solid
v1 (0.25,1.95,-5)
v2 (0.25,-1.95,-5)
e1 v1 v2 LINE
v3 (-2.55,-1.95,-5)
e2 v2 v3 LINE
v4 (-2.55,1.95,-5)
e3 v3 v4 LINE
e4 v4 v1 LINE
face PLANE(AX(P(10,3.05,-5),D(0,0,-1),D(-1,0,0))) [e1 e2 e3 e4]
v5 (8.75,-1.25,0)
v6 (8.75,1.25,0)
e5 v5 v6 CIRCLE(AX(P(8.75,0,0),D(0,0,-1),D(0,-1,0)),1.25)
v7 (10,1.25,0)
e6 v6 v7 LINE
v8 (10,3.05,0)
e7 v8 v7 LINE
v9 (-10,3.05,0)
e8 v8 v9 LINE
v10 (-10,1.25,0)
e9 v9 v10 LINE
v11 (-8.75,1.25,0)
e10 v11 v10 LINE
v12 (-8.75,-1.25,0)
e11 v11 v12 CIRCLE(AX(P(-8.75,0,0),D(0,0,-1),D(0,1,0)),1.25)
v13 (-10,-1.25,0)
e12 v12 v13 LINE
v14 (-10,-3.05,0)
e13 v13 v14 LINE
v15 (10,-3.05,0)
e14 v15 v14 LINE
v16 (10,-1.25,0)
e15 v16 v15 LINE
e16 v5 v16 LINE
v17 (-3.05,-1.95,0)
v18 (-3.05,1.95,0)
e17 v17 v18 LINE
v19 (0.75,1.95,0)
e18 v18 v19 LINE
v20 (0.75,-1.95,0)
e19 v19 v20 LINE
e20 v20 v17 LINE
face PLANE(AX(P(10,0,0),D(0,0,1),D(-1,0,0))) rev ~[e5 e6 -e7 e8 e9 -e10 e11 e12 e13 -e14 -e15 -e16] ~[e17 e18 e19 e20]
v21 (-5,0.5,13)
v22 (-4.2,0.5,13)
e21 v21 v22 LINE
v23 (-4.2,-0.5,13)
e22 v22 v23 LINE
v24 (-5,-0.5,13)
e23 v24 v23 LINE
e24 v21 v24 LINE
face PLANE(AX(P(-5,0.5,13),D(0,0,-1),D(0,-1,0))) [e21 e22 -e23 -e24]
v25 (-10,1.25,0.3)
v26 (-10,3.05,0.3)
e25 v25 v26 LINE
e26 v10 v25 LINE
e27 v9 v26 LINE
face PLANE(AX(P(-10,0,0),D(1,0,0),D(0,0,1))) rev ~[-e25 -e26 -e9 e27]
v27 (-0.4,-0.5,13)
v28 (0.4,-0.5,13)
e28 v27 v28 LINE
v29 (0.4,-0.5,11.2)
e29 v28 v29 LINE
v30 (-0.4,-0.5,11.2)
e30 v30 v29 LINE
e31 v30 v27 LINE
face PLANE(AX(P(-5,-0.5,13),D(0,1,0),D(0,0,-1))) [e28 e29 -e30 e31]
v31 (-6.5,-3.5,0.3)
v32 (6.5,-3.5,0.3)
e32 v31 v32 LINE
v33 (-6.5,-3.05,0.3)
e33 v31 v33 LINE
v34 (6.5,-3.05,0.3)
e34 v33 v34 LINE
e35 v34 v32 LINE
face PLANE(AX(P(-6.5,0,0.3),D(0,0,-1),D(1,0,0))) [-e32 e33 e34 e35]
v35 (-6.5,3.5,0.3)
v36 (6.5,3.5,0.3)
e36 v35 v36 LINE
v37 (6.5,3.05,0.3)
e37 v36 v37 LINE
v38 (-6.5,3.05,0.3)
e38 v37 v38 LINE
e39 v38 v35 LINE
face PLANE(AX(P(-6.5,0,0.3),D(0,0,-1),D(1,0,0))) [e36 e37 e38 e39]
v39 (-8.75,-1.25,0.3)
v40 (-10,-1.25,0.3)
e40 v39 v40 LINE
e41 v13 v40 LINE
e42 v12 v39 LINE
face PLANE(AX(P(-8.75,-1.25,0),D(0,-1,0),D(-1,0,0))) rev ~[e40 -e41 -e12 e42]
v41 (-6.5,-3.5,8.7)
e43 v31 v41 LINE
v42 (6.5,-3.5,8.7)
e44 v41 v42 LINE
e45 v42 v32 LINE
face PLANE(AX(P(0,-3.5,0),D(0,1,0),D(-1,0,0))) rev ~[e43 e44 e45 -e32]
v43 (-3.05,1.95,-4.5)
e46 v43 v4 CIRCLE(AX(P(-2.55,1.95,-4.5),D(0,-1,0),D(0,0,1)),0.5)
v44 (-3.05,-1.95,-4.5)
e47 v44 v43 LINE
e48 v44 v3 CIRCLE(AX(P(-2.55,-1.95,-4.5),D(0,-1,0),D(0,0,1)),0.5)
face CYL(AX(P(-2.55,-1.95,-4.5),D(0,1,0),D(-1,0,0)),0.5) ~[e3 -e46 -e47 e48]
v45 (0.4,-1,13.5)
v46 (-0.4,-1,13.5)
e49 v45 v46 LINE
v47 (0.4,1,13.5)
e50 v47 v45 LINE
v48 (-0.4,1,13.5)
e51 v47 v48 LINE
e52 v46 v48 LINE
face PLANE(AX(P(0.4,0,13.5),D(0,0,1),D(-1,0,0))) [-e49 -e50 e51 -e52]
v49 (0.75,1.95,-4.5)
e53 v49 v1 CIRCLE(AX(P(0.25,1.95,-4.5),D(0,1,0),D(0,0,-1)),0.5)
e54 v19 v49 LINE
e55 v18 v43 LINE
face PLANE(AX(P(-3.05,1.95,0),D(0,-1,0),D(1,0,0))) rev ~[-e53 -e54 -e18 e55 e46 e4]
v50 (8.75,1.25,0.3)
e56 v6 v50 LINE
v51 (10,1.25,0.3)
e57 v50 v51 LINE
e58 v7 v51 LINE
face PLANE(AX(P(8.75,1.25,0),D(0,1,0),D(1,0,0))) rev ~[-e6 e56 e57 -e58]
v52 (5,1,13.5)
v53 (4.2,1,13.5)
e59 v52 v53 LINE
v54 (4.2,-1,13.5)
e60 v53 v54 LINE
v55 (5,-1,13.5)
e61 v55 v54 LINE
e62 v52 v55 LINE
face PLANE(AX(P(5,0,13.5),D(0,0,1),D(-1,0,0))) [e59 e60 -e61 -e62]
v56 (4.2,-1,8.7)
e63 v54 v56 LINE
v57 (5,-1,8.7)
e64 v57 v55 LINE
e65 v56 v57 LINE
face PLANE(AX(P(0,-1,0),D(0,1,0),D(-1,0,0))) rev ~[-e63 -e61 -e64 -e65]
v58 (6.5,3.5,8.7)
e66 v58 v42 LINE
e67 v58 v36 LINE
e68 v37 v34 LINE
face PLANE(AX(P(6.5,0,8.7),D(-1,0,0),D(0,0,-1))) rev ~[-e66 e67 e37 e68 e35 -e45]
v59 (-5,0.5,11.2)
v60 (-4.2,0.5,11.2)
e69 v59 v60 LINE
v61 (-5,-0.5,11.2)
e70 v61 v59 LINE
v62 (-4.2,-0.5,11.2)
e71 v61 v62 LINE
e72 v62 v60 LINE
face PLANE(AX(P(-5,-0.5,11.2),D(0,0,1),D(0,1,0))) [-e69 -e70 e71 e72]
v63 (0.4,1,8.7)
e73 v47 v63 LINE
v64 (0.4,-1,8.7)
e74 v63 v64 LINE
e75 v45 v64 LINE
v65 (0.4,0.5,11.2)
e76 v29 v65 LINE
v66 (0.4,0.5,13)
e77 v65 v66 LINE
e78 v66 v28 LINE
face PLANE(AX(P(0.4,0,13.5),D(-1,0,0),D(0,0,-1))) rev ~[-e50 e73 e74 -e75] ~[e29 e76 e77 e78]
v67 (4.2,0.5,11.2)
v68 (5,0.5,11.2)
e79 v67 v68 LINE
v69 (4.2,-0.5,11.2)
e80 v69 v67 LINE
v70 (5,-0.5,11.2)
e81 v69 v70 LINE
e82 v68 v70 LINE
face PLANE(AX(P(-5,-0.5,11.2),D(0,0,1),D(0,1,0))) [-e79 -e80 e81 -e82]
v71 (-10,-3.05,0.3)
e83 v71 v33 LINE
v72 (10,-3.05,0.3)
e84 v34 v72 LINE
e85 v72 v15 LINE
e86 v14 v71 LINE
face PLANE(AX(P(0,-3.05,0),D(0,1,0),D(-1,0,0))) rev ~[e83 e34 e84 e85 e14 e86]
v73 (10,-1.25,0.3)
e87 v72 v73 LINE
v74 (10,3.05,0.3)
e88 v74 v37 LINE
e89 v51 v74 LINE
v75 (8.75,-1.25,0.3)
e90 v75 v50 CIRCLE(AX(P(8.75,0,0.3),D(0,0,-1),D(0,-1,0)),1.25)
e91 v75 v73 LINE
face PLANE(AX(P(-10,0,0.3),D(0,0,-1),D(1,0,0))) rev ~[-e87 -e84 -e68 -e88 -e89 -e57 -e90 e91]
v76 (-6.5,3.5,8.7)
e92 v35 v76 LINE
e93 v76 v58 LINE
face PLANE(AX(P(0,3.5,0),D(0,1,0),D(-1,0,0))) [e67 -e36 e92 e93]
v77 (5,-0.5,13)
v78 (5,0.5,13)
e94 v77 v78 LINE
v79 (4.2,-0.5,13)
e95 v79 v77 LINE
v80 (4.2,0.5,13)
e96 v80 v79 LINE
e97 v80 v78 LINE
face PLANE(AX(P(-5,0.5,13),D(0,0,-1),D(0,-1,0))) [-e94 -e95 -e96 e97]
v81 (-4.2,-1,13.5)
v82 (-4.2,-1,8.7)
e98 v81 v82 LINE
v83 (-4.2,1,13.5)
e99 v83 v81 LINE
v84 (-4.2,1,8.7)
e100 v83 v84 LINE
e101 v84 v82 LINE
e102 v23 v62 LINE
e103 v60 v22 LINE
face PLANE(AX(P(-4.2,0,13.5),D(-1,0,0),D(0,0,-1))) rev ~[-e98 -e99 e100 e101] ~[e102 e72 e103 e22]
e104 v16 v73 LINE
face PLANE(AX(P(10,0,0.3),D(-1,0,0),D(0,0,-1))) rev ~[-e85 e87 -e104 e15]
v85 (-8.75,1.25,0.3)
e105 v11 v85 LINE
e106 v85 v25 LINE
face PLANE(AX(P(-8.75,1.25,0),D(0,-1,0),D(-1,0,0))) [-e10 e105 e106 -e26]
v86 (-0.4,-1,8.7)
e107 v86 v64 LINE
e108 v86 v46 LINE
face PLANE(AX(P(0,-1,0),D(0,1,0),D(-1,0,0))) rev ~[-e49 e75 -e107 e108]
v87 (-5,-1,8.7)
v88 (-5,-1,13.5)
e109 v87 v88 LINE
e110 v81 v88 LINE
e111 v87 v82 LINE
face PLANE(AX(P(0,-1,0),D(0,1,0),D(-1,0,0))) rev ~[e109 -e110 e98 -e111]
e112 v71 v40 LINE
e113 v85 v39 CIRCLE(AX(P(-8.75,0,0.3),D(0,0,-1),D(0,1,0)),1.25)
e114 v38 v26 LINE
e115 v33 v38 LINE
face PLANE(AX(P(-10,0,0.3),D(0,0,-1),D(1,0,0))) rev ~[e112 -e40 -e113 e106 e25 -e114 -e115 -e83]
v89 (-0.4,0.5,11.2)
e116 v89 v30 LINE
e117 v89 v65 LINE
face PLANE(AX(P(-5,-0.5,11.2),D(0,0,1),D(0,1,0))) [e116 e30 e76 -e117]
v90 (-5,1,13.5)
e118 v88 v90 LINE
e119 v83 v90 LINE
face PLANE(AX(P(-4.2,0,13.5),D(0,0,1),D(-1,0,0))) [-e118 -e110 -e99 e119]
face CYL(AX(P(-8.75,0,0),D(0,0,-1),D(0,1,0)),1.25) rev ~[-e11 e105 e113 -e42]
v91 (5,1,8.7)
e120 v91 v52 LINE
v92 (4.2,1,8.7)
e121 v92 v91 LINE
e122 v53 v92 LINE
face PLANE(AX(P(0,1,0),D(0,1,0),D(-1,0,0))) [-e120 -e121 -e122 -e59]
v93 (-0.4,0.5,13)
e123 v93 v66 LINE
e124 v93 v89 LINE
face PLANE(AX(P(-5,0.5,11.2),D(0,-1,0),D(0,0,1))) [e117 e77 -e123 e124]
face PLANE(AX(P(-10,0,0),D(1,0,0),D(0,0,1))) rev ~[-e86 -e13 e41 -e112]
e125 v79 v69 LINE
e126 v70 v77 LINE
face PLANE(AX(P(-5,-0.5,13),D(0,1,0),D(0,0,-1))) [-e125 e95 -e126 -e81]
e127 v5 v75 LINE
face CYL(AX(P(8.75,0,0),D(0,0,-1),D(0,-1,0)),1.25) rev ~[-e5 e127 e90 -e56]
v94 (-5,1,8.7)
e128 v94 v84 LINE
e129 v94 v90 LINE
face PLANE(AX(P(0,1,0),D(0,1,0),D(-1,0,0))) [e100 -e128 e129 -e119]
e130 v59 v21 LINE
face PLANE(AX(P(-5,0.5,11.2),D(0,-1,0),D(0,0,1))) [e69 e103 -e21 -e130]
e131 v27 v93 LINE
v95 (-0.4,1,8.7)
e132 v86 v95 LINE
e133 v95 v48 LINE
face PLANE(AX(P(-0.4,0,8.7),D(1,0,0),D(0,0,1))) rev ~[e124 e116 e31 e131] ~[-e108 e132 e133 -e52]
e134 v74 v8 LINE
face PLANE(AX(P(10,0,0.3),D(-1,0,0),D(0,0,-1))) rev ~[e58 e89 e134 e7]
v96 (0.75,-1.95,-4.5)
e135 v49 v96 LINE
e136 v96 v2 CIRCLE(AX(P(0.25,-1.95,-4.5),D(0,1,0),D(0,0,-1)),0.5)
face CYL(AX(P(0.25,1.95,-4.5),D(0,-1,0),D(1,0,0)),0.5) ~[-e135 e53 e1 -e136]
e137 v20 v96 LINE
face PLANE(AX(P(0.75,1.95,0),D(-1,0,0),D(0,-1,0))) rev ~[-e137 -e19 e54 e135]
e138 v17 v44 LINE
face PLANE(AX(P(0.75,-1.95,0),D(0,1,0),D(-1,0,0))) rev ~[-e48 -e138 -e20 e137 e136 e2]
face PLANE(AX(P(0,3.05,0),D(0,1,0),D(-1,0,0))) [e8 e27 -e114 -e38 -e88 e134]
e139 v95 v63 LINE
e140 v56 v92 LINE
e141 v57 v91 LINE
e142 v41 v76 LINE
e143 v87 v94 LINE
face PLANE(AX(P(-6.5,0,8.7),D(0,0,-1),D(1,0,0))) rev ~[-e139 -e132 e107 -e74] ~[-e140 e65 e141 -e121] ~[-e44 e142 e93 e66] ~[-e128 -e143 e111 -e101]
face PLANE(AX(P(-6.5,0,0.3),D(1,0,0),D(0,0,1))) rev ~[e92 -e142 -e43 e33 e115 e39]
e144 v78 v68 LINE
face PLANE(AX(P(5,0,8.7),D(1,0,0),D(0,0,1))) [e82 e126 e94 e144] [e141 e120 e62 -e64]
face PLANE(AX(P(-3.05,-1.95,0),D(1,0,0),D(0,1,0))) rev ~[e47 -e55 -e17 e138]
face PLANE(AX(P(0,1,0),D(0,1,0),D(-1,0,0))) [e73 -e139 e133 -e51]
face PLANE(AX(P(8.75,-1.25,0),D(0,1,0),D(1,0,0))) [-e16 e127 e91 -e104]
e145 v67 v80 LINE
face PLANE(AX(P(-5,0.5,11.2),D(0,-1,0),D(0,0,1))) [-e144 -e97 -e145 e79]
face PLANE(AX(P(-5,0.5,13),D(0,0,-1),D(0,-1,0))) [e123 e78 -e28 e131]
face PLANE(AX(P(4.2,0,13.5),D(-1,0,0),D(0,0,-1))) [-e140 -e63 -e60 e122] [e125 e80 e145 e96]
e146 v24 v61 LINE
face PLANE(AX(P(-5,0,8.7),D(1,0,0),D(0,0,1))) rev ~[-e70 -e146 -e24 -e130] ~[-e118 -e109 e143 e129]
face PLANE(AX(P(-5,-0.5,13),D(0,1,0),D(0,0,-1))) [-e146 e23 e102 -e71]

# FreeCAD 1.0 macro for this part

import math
import FreeCAD as App
import Part
import Sketcher
Q = App.Units.Quantity


def edges_at(feature, points):
    """Names of the edges that pass closest to the given points."""
    edges = feature.Shape.Edges
    near = lambda p: min(range(len(edges)), key=lambda i: edges[i].distToShape(Part.Vertex(*p))[0])
    return sorted({f"Edge{near(p) + 1}" for p in points})


def add_polygon(sketch, points):
    """Adds a closed chain of lines whose ends are joined by coincident constraints."""
    first, n = sketch.GeometryCount, len(points)
    for a, b in zip(points, points[1:] + points[:1]):
        sketch.addGeometry(Part.LineSegment(App.Vector(*a, 0), App.Vector(*b, 0)), False)
    for i in range(n):
        sketch.addConstraint(Sketcher.Constraint("Coincident", first + i, 2, first + (i + 1) % n, 1))

doc = App.newDocument("Part")
params = doc.addObject("Spreadsheet::Sheet", "Params")
for row, (alias, value) in enumerate([
    ("sketch1_width", "13 mm"),
    ("pad1_length", "7 mm"),
    ("sketch2_width", "20 mm"),
    ("sketch2_height", "0.3 mm"),
    ("pad2_length", "6.1 mm"),
    ("sketch3_width", "0.8 mm"),
    ("pad3_length", "2 mm"),
    ("sketch4_radius", "1.25 mm"),
    ("pocket1_length", "0.3 mm"),
    ("sketch5_width", "3.8 mm"),
    ("sketch5_height", "3.9 mm"),
    ("pad4_length", "5 mm"),
    ("fillet_radius", "0.5 mm"),
    ("sketch6_width", "1 mm"),
    ("sketch6_height", "1.8 mm"),
    ("pocket2_length", "13 mm"),
], start=1):
    params.set(f"A{row}", alias)
    params.set(f"B{row}", "=" + value)
    params.setAlias(f"B{row}", alias)

body = doc.addObject("PartDesign::Body", "Body")

# Sketch on XZ plane
sketch1 = body.newObject("Sketcher::SketchObject", "Sketch")
sketch1.AttachmentSupport = (doc.getObject("XZ_Plane"), [""])
sketch1.MapMode = "FlatFace"
add_polygon(sketch1, [(6, 0), (-6, 0), (-6, 9), (6, 9)])  # lines 0-3
sketch1.addConstraint([
    Sketcher.Constraint("Horizontal", 0),
    Sketcher.Constraint("Vertical", 1),
    Sketcher.Constraint("Horizontal", 2),
    Sketcher.Constraint("Vertical", 3),
    Sketcher.Constraint("DistanceX", 0, 2, 0, 1, Q("13 mm")),
    Sketcher.Constraint("DistanceY", -1, 1, 0, 2, Q("0.3 mm")),
    Sketcher.Constraint("DistanceY", -1, 1, 1, 2, Q("8.7 mm")),
    Sketcher.Constraint("DistanceX", 0, 2, -1, 1, Q("6.5 mm")),
])
sketch1.setExpression("Constraints[8]", "Params.sketch1_width")
pad1 = body.newObject("PartDesign::Pad", "Pad")
pad1.Profile = sketch1
pad1.setExpression("Length", "Params.pad1_length")
pad1.Midplane = True

# Sketch on XZ plane
sketch2 = body.newObject("Sketcher::SketchObject", "Sketch001")
sketch2.AttachmentSupport = (doc.getObject("XZ_Plane"), [""])
sketch2.MapMode = "FlatFace"
add_polygon(sketch2, [(-10, 0), (-10, 0.3), (10, 0.3), (10, 0)])  # lines 0-3
sketch2.addConstraint([
    Sketcher.Constraint("Vertical", 0),
    Sketcher.Constraint("Horizontal", 1),
    Sketcher.Constraint("Vertical", 2),
    Sketcher.Constraint("Horizontal", 3),
    Sketcher.Constraint("Symmetric", 2, 2, 3, 2, -1, 1),
    Sketcher.Constraint("DistanceX", 1, 1, 1, 2, Q("20 mm")),
    Sketcher.Constraint("DistanceY", 0, 1, 0, 2, Q("0.3 mm")),
])
sketch2.setExpression("Constraints[9]", "Params.sketch2_width")
sketch2.setExpression("Constraints[10]", "Params.sketch2_height")
pad2 = body.newObject("PartDesign::Pad", "Pad001")
pad2.Profile = sketch2
pad2.setExpression("Length", "Params.pad2_length")
pad2.Midplane = True

# Sketch on XZ plane
sketch3 = body.newObject("Sketcher::SketchObject", "Sketch002")
sketch3.AttachmentSupport = (doc.getObject("XZ_Plane"), [""])
sketch3.MapMode = "FlatFace"
add_polygon(sketch3, [(-4.2, 8.7), (-5, 8.7), (-5, 13.5), (-4.2, 13.5)])  # lines 0-3
add_polygon(sketch3, [(5, 13.5), (5, 8.7), (4.2, 8.7), (4.2, 13.5)])  # lines 4-7
add_polygon(sketch3, [(0.4, 8.7), (-0.4, 8.7), (-0.4, 13.5), (0.4, 13.5)])  # lines 8-11
sketch3.addConstraint([
    Sketcher.Constraint("Horizontal", 0),
    Sketcher.Constraint("Vertical", 1),
    Sketcher.Constraint("Horizontal", 2),
    Sketcher.Constraint("Vertical", 3),
    Sketcher.Constraint("Vertical", 4),
    Sketcher.Constraint("Horizontal", 5),
    Sketcher.Constraint("Vertical", 6),
    Sketcher.Constraint("Horizontal", 7),
    Sketcher.Constraint("Horizontal", 8),
    Sketcher.Constraint("Vertical", 9),
    Sketcher.Constraint("Horizontal", 10),
    Sketcher.Constraint("Vertical", 11),
    Sketcher.Constraint("Symmetric", 0, 2, 4, 2, -2),
    Sketcher.Constraint("Symmetric", 2, 2, 6, 2, -2),
    Sketcher.Constraint("Horizontal", 5, 2, 8, 2),
    Sketcher.Constraint("Horizontal", 7, 2, 9, 2),
    Sketcher.Constraint("Equal", 7, 8),
    Sketcher.Constraint("DistanceY", -1, 1, 0, 2, Q("8.7 mm")),
    Sketcher.Constraint("DistanceY", -1, 1, 1, 2, Q("13.5 mm")),
    Sketcher.Constraint("DistanceX", 0, 2, 0, 1, Q("0.8 mm")),
    Sketcher.Constraint("DistanceX", 0, 2, -1, 1, Q("5 mm")),
    Sketcher.Constraint("DistanceX", 8, 2, -1, 1, Q("0.4 mm")),
])
sketch3.setExpression("Constraints[31]", "Params.sketch3_width")
pad3 = body.newObject("PartDesign::Pad", "Pad002")
pad3.Profile = sketch3
pad3.setExpression("Length", "Params.pad3_length")
pad3.Midplane = True

# Sketch on XY plane
sketch4 = body.newObject("Sketcher::SketchObject", "Sketch003")
sketch4.AttachmentSupport = (doc.getObject("XY_Plane"), [""])
sketch4.MapMode = "FlatFace"
sketch4.addGeometry([
    Part.LineSegment(App.Vector(10, 1.2, 0), App.Vector(10, -1.2, 0)),  # 0
    Part.LineSegment(App.Vector(10, -1.2, 0), App.Vector(8.8, -1.2, 0)),  # 1
    Part.ArcOfCircle(Part.Circle(App.Vector(8.8, 0, 0), App.Vector(0, 0, 1), 1.2), math.radians(90), math.radians(270)),  # 2
    Part.LineSegment(App.Vector(8.8, 1.2, 0), App.Vector(10, 1.2, 0)),  # 3
    Part.LineSegment(App.Vector(-8.8, -1.2, 0), App.Vector(-10, -1.2, 0)),  # 4
    Part.LineSegment(App.Vector(-10, -1.2, 0), App.Vector(-10, 1.2, 0)),  # 5
    Part.LineSegment(App.Vector(-10, 1.2, 0), App.Vector(-8.8, 1.2, 0)),  # 6
    Part.ArcOfCircle(Part.Circle(App.Vector(-8.8, 0, 0), App.Vector(0, 0, 1), 1.2), math.radians(-90), math.radians(90)),  # 7
], False)
sketch4.addConstraint([
    Sketcher.Constraint("Coincident", 0, 2, 1, 1),
    Sketcher.Constraint("Tangent", 1, 2, 2, 2),
    Sketcher.Constraint("Tangent", 2, 1, 3, 1),
    Sketcher.Constraint("Coincident", 3, 2, 0, 1),
    Sketcher.Constraint("Coincident", 4, 2, 5, 1),
    Sketcher.Constraint("Coincident", 5, 2, 6, 1),
    Sketcher.Constraint("Tangent", 6, 2, 7, 2),
    Sketcher.Constraint("Tangent", 7, 1, 4, 1),
    Sketcher.Constraint("Vertical", 0),
    Sketcher.Constraint("Horizontal", 1),
    Sketcher.Constraint("Horizontal", 3),
    Sketcher.Constraint("Horizontal", 4),
    Sketcher.Constraint("Vertical", 5),
    Sketcher.Constraint("Horizontal", 6),
    Sketcher.Constraint("Equal", 2, 7),
    Sketcher.Constraint("Symmetric", 2, 3, 7, 3, -1, 1),
    Sketcher.Constraint("Symmetric", 0, 2, 4, 2, -2),
    Sketcher.Constraint("Radius", 2, Q("1.25 mm")),
    Sketcher.Constraint("DistanceX", 7, 3, 2, 3, Q("17.5 mm")),
    Sketcher.Constraint("DistanceX", -1, 1, 0, 2, Q("10 mm")),
])
sketch4.setExpression("Constraints[17]", "Params.sketch4_radius")
pocket1 = body.newObject("PartDesign::Pocket", "Pocket")
pocket1.Profile = sketch4
pocket1.setExpression("Length", "Params.pocket1_length")
pocket1.Reversed = True

# Sketch on XY plane
sketch5 = body.newObject("Sketcher::SketchObject", "Sketch004")
sketch5.AttachmentSupport = (doc.getObject("XY_Plane"), [""])
sketch5.MapMode = "FlatFace"
add_polygon(sketch5, [(-3, -1.9), (-3, 1.9), (0.8, 1.9), (0.8, -1.9)])  # lines 0-3
sketch5.addConstraint([
    Sketcher.Constraint("Vertical", 0),
    Sketcher.Constraint("Horizontal", 1),
    Sketcher.Constraint("Vertical", 2),
    Sketcher.Constraint("Horizontal", 3),
    Sketcher.Constraint("DistanceX", 1, 1, 1, 2, Q("3.8 mm")),
    Sketcher.Constraint("DistanceY", 0, 1, 0, 2, Q("3.9 mm")),
    Sketcher.Constraint("DistanceX", 0, 2, -1, 1, Q("3.05 mm")),
    Sketcher.Constraint("DistanceY", -1, 1, 0, 2, Q("1.95 mm")),
])
sketch5.setExpression("Constraints[8]", "Params.sketch5_width")
sketch5.setExpression("Constraints[9]", "Params.sketch5_height")
pad4 = body.newObject("PartDesign::Pad", "Pad003")
pad4.Profile = sketch5
pad4.setExpression("Length", "Params.pad4_length")
pad4.Reversed = True
doc.recompute()

fillet = body.newObject("PartDesign::Fillet", "Fillet")
fillet.Base = (pad4, edges_at(pad4, [(0.75, 0, -5), (-3.05, 0, -5)]))
fillet.setExpression("Radius", "Params.fillet_radius")

# Sketch on YZ plane
sketch6 = body.newObject("Sketcher::SketchObject", "Sketch005")
sketch6.AttachmentSupport = (doc.getObject("YZ_Plane"), [""])
sketch6.MapMode = "FlatFace"
sketch6.AttachmentOffset = App.Placement(App.Vector(0, 0, -5), App.Rotation())
add_polygon(sketch6, [(-0.5, 11.2), (-0.5, 13), (0.5, 13), (0.5, 11.2)])  # lines 0-3
sketch6.addConstraint([
    Sketcher.Constraint("Vertical", 0),
    Sketcher.Constraint("Horizontal", 1),
    Sketcher.Constraint("Vertical", 2),
    Sketcher.Constraint("Horizontal", 3),
    Sketcher.Constraint("DistanceX", 1, 1, 1, 2, Q("1 mm")),
    Sketcher.Constraint("DistanceY", 0, 1, 0, 2, Q("1.8 mm")),
    Sketcher.Constraint("DistanceY", -1, 1, 0, 2, Q("13 mm")),
    Sketcher.Constraint("DistanceX", 0, 2, -1, 1, Q("0.5 mm")),
])
sketch6.setExpression("Constraints[8]", "Params.sketch6_width")
sketch6.setExpression("Constraints[9]", "Params.sketch6_height")
pocket2 = body.newObject("PartDesign::Pocket", "Pocket001")
pocket2.Profile = sketch6
pocket2.setExpression("Length", "Params.pocket2_length")
pocket2.Reversed = True

doc.recompute()
